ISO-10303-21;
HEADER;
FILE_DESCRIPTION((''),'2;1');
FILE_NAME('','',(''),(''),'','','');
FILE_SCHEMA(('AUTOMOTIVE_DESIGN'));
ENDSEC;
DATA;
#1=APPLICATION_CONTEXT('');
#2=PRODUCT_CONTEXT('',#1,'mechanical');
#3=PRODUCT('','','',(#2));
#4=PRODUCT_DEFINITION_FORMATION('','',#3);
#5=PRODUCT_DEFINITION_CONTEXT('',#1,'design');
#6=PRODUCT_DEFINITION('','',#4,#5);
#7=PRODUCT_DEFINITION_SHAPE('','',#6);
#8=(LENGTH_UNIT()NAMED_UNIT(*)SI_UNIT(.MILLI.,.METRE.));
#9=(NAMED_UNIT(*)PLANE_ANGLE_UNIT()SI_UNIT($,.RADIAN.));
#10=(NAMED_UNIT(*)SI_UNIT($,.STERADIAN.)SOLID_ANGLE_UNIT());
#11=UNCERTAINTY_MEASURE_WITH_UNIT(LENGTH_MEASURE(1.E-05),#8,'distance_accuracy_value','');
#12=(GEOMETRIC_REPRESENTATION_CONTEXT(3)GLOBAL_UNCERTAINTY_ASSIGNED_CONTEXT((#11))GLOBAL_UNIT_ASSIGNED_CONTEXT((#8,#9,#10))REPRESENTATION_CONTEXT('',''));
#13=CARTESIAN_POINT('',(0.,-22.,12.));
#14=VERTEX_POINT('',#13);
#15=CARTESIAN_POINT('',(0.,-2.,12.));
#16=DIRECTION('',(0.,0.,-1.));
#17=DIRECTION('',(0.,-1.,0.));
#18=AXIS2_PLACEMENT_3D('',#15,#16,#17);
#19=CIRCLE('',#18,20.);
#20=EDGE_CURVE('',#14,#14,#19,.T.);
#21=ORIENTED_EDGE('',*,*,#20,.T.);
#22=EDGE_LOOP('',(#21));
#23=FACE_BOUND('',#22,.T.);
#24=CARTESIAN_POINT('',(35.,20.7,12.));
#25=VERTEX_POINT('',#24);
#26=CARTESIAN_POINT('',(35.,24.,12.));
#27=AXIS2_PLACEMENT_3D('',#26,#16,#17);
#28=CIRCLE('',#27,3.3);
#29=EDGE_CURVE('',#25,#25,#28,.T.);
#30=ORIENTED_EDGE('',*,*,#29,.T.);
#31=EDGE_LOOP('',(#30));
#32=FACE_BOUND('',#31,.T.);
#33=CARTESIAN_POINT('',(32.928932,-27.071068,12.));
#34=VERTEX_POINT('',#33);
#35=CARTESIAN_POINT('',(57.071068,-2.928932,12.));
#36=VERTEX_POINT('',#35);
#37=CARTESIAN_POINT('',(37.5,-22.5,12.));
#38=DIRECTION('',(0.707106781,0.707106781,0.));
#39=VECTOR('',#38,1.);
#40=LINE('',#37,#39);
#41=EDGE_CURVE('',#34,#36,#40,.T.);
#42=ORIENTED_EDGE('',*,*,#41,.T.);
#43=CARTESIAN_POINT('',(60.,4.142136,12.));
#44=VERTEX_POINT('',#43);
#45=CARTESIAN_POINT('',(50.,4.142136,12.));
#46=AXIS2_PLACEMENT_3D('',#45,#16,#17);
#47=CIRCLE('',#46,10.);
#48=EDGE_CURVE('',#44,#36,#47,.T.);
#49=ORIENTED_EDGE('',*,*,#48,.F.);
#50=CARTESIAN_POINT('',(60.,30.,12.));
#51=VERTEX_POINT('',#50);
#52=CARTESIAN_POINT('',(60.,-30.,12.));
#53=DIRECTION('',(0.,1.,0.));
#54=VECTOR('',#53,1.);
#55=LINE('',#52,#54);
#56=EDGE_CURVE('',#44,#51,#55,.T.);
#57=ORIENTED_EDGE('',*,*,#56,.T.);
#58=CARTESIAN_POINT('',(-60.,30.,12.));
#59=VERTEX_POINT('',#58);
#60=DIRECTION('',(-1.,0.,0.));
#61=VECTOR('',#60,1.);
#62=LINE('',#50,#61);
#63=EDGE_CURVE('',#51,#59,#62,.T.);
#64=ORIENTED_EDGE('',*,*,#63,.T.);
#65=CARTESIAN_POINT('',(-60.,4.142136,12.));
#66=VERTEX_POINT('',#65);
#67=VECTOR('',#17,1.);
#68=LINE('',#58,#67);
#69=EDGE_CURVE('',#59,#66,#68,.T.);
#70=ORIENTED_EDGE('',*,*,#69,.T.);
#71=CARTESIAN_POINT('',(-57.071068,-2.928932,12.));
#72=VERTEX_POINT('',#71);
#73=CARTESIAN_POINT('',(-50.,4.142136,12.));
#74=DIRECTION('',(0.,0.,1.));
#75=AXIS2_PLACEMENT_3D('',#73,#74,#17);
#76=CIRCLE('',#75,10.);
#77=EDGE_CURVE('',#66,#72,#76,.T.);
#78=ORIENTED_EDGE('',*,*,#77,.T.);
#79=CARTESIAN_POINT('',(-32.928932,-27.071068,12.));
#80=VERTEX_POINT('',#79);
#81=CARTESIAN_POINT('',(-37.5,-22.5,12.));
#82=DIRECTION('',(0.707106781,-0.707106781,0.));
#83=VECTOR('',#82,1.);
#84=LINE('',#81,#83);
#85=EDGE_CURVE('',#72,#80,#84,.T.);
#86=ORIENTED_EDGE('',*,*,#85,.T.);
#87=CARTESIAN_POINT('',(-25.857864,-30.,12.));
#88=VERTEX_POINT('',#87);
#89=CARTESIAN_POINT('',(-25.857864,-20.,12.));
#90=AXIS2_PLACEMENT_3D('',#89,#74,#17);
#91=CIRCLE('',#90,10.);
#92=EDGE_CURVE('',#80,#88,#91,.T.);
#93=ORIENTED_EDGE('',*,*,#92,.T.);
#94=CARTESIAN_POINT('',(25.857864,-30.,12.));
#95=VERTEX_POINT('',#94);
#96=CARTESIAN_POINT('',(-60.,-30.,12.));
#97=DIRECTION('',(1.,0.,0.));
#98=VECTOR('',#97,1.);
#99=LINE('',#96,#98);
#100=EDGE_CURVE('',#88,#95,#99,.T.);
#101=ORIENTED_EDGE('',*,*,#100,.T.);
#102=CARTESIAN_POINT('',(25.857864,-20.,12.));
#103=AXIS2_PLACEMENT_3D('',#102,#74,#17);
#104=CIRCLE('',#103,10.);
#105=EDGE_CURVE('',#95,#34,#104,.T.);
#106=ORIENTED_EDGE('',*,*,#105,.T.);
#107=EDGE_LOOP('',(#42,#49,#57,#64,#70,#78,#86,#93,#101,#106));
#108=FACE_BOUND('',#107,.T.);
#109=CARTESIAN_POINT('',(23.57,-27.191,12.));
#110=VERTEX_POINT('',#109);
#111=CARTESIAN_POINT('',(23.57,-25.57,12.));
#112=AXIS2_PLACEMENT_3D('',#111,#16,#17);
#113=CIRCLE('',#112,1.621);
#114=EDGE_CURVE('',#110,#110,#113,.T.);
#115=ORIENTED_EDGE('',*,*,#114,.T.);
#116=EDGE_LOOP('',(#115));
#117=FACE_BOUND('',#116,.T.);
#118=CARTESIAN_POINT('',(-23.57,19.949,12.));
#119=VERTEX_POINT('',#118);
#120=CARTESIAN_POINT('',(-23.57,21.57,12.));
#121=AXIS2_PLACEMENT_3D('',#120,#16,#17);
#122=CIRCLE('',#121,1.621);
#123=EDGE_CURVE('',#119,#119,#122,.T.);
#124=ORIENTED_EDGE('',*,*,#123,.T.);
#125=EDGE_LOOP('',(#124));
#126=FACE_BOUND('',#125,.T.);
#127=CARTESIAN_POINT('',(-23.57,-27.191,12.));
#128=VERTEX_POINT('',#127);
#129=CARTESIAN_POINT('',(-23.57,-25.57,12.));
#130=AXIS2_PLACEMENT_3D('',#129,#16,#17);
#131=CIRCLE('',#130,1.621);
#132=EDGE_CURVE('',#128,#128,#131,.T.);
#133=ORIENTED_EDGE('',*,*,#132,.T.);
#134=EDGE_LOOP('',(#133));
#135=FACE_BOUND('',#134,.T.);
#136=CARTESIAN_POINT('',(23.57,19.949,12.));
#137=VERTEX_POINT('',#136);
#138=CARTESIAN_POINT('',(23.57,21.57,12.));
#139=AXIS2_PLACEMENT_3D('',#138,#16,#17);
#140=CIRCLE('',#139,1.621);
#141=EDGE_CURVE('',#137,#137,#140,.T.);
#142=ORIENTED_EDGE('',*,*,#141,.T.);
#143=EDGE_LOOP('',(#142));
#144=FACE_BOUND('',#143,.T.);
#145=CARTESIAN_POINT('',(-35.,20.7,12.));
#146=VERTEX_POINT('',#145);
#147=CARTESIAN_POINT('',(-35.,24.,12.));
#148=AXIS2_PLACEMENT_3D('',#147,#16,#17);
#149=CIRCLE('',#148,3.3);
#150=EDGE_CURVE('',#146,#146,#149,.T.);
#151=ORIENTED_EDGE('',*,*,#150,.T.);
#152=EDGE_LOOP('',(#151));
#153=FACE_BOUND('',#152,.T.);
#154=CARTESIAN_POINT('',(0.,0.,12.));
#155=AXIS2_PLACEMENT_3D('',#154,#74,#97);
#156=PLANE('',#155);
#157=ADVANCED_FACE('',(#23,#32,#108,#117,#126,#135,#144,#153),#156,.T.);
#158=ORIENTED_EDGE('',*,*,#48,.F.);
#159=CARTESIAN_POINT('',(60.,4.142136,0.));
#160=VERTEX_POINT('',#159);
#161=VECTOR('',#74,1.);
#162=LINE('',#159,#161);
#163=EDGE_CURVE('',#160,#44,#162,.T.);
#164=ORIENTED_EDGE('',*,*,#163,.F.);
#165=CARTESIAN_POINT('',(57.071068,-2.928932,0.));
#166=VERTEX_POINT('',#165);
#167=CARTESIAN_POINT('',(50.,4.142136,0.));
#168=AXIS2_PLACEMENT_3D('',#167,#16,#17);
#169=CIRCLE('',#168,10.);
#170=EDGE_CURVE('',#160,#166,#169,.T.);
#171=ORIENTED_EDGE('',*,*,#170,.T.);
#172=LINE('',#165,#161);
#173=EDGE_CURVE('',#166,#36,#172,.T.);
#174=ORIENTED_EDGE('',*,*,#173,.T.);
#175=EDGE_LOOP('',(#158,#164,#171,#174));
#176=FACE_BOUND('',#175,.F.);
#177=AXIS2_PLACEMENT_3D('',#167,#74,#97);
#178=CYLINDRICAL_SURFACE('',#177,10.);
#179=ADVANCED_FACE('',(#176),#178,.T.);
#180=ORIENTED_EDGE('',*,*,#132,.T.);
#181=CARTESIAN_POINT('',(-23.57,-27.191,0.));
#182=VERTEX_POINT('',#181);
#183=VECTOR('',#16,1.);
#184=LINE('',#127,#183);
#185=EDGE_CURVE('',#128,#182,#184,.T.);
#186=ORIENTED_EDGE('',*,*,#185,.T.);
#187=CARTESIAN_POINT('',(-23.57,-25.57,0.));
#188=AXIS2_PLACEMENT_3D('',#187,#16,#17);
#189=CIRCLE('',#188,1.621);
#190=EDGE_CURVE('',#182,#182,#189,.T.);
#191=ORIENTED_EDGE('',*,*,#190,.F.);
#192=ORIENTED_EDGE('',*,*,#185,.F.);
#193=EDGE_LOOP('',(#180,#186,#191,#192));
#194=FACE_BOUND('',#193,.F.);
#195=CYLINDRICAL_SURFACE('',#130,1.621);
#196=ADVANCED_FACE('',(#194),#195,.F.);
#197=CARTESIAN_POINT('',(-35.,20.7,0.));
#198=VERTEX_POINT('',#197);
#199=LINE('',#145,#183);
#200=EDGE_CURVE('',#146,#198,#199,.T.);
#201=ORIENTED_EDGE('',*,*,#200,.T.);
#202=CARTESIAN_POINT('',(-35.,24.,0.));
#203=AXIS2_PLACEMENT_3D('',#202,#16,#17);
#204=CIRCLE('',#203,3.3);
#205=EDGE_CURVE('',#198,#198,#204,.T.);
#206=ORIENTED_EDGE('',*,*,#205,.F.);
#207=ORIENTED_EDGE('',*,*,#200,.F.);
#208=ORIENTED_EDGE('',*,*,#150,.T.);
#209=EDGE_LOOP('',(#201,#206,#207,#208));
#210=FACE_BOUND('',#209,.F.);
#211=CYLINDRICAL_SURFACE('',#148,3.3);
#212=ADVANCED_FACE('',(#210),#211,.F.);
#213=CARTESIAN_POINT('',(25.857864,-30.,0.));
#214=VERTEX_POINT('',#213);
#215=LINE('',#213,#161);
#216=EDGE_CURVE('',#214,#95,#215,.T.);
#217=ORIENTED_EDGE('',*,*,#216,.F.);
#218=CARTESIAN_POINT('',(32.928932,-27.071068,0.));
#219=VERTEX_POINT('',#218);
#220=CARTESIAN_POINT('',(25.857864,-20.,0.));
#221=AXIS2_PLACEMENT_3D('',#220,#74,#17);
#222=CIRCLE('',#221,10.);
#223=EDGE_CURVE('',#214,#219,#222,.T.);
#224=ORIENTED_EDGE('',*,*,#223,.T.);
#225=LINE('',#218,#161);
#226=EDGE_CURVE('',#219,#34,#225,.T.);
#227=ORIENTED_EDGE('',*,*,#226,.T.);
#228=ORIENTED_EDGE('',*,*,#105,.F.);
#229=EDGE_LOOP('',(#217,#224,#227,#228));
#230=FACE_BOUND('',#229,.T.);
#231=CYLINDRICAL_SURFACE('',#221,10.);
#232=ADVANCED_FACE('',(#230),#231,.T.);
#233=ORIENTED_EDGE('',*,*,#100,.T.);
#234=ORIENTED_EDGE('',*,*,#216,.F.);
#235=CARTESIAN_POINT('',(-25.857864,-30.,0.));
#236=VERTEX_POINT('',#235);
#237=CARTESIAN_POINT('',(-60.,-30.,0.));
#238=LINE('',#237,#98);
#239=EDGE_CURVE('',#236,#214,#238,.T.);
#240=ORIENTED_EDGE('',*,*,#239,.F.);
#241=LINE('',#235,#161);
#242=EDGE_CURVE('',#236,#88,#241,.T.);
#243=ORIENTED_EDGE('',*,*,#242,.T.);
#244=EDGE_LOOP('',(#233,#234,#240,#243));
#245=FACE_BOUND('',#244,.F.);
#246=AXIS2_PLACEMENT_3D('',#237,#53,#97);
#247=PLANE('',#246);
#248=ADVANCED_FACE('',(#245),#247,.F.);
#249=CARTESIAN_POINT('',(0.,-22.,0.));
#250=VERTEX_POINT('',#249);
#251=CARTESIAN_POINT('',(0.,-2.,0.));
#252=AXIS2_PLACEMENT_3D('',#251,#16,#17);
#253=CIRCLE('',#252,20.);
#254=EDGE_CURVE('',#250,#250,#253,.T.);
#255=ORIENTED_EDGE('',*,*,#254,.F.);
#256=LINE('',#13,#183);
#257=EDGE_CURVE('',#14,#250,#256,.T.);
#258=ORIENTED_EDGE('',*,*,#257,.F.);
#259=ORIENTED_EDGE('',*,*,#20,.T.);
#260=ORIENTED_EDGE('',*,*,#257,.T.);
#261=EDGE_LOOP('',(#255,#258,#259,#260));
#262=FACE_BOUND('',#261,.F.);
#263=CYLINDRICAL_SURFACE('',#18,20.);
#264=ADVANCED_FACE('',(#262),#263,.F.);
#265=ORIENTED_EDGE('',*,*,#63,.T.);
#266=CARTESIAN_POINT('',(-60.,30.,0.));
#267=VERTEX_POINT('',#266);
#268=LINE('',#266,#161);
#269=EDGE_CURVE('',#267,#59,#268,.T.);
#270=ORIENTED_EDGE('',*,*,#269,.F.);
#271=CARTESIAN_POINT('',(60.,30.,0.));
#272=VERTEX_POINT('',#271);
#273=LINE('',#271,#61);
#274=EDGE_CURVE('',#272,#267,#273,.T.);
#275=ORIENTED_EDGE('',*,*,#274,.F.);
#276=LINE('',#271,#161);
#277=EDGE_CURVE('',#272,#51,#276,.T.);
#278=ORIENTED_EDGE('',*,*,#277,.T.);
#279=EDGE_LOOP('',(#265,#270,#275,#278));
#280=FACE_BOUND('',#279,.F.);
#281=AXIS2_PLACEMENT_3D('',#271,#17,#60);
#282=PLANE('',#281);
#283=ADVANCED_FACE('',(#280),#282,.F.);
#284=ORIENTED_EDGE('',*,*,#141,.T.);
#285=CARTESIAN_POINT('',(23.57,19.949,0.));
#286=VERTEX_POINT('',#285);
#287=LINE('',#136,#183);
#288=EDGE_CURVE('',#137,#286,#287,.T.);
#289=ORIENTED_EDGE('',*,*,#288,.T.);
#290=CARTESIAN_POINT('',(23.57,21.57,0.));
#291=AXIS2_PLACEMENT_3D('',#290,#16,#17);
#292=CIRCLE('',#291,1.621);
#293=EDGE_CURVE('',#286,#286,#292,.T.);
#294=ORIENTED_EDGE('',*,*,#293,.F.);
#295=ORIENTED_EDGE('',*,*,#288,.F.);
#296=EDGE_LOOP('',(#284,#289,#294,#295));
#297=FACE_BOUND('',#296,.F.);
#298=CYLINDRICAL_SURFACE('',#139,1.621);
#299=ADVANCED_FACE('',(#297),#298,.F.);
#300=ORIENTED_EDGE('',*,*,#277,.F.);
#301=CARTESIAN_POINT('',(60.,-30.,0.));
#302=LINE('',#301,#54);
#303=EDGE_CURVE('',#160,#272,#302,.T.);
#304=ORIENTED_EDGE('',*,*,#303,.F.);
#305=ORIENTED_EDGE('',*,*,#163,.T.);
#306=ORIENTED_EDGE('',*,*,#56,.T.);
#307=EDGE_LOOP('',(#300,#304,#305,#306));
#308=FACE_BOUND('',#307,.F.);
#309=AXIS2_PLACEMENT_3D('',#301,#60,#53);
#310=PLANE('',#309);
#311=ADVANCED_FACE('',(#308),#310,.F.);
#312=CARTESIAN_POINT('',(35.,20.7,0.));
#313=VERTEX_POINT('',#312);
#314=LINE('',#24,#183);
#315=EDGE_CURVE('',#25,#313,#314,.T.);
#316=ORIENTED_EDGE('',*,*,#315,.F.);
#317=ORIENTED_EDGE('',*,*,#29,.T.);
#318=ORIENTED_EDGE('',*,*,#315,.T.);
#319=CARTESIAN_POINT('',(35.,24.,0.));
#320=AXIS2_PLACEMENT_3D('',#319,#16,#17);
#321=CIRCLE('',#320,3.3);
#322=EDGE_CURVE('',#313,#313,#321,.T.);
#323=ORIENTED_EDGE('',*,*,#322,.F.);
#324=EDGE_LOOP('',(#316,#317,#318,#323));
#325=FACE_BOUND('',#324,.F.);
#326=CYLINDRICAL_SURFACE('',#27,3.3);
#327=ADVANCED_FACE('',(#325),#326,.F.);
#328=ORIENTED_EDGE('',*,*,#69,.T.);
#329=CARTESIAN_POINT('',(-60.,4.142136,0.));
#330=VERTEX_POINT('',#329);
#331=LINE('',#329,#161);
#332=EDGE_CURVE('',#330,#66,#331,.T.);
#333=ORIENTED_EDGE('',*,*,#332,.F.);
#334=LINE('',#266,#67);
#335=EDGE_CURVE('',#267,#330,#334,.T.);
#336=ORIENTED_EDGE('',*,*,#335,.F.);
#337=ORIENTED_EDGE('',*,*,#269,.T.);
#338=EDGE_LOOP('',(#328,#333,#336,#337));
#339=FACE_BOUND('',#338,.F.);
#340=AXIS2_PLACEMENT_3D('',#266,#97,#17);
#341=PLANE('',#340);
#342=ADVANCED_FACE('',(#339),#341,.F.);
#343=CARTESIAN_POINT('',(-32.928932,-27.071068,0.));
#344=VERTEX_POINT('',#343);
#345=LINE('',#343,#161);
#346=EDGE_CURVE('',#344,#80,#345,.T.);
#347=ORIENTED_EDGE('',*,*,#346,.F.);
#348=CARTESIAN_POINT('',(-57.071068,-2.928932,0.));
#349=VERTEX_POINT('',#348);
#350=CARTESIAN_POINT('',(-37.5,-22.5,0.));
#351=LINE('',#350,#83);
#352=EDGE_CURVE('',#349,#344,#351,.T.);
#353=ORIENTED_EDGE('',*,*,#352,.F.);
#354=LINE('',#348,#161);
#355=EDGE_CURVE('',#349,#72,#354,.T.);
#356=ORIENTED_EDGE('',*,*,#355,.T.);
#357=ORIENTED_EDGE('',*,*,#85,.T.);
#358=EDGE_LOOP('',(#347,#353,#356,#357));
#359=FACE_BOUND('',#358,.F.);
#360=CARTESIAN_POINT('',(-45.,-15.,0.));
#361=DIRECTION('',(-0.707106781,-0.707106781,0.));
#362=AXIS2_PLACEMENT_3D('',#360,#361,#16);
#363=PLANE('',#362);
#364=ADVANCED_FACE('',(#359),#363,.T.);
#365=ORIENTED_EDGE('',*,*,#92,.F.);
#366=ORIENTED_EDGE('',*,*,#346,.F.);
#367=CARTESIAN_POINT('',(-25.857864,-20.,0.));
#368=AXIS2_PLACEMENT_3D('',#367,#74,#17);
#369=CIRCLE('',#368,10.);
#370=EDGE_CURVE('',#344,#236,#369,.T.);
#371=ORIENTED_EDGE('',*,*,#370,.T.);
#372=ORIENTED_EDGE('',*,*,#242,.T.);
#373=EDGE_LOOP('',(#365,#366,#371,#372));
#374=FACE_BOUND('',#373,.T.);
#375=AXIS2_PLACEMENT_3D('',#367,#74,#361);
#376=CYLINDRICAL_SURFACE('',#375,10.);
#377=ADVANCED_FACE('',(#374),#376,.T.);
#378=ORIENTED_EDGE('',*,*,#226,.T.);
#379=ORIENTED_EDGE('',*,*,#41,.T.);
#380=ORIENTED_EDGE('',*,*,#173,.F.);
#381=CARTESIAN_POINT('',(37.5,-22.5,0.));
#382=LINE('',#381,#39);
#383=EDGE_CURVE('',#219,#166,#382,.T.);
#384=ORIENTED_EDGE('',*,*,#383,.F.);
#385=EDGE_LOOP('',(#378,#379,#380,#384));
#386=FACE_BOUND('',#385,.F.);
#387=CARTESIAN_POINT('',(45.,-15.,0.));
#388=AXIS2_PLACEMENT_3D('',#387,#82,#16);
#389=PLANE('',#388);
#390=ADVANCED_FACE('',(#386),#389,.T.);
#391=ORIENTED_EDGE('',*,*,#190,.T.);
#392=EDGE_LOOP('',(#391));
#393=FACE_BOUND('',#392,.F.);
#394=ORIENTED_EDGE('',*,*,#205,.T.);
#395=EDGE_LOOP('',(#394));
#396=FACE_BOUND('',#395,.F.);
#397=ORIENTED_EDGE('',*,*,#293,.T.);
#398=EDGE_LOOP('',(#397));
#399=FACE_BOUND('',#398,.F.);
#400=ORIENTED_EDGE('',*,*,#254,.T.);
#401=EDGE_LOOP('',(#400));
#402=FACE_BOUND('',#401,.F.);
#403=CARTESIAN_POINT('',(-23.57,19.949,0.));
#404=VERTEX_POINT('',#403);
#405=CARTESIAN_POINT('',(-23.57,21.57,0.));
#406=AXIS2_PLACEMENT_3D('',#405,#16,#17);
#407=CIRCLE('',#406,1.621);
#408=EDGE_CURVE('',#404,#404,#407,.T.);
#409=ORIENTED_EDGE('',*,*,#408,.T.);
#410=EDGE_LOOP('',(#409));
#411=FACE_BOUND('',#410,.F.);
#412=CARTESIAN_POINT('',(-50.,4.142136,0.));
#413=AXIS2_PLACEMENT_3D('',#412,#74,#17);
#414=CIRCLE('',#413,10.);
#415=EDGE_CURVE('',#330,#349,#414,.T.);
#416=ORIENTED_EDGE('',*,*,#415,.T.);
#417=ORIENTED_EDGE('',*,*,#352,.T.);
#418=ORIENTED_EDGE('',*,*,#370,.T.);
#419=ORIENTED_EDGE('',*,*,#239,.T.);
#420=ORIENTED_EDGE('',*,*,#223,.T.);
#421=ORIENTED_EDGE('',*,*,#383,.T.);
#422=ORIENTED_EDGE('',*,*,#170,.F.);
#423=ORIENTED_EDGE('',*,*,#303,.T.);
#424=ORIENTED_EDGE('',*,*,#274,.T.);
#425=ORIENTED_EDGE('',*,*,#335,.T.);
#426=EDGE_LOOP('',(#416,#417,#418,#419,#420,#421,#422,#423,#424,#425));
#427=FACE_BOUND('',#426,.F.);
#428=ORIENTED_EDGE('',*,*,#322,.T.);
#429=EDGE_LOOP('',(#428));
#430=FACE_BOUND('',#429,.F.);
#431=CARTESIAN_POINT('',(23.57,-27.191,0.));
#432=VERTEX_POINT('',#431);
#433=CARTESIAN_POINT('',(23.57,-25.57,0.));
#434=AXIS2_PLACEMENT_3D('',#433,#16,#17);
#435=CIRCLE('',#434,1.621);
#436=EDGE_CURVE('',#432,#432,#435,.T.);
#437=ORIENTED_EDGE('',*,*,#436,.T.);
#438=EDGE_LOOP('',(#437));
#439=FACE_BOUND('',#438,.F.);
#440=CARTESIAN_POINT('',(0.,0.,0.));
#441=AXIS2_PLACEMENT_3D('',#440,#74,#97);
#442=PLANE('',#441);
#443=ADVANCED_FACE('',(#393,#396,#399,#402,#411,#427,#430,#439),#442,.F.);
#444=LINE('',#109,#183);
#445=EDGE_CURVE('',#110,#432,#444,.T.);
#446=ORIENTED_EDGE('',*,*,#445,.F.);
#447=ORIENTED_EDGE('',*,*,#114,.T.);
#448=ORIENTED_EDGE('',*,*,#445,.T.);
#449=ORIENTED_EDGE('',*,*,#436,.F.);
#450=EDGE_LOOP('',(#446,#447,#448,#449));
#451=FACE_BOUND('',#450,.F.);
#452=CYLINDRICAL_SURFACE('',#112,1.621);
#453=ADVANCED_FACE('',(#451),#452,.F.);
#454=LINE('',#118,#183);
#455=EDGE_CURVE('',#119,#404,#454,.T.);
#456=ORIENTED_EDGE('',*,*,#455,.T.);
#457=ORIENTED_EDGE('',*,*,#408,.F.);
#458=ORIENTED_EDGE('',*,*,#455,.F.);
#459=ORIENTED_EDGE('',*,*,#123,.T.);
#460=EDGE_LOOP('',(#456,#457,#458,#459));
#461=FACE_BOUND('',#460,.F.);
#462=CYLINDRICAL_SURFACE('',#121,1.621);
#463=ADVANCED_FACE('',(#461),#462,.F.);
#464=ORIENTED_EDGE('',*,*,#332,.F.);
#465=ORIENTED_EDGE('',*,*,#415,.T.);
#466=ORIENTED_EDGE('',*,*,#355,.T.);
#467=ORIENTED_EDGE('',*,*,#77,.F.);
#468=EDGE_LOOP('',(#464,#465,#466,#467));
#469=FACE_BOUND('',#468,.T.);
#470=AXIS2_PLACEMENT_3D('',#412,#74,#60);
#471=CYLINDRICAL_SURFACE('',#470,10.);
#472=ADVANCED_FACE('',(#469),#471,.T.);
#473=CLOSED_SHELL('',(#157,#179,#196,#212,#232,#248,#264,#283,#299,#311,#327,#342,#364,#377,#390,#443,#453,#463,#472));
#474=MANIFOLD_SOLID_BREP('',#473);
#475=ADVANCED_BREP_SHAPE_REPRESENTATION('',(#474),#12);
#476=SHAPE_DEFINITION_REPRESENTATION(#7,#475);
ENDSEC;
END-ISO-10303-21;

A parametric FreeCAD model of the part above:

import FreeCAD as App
import Part
import Sketcher
from FreeCAD import Vector


def edges_at(feature, points):
    """Names of the edges that pass closest to the given points."""
    edges = feature.Shape.Edges
    near = lambda p: min(range(len(edges)), key=lambda i: edges[i].distToShape(Part.Vertex(*p))[0])
    return sorted({f"Edge{near(p) + 1}" for p in points})

doc = App.newDocument("Part")
body = doc.addObject("PartDesign::Body", "Body")

# Sketch on XY plane
sketch1 = body.newObject("Sketcher::SketchObject", "Sketch")
sketch1.AttachmentSupport = (doc.getObject("XY_Plane"), [""])
sketch1.MapMode = "FlatFace"
sketch1.addGeometry([
    Part.LineSegment(Vector(-60, 30, 0), Vector(-60, -30, 0)),
    Part.LineSegment(Vector(-60, -30, 0), Vector(60, -30, 0)),
    Part.LineSegment(Vector(60, -30, 0), Vector(60, 30, 0)),
    Part.LineSegment(Vector(60, 30, 0), Vector(-60, 30, 0)),
], False)
sketch1.addConstraint([
    Sketcher.Constraint("Coincident", 0, 2, 1, 1),
    Sketcher.Constraint("Coincident", 1, 2, 2, 1),
    Sketcher.Constraint("Coincident", 2, 2, 3, 1),
    Sketcher.Constraint("Coincident", 3, 2, 0, 1),
    Sketcher.Constraint("Vertical", 0),
    Sketcher.Constraint("Horizontal", 1),
    Sketcher.Constraint("Vertical", 2),
    Sketcher.Constraint("Horizontal", 3),
    Sketcher.Constraint("Symmetric", 0, 2, 2, 2, -1, 1),
    Sketcher.Constraint("DistanceX", 1, 1, 1, 2, 120.0),
    Sketcher.Constraint("DistanceY", 0, 2, 0, 1, 60.0),
])
pad1 = body.newObject("PartDesign::Pad", "Pad")
pad1.Profile = sketch1
pad1.Length = 12

# Sketch on XY plane
sketch2 = body.newObject("Sketcher::SketchObject", "Sketch001")
sketch2.AttachmentSupport = (doc.getObject("XY_Plane"), [""])
sketch2.MapMode = "FlatFace"
sketch2.AttachmentOffset = App.Placement(Vector(0, 0, 12), App.Rotation())
sketch2.addGeometry(Part.Circle(Vector(0, -2, 0), Vector(0, 0, 1), 20), False)
sketch2.addConstraint([
    Sketcher.Constraint("PointOnObject", 0, 3, -2),
    Sketcher.Constraint("Diameter", 0, 40.0),
    Sketcher.Constraint("DistanceY", 0, 3, -1, 1, 2.0),
])
doc.recompute()
hole = body.newObject("PartDesign::Hole", "Hole")
hole.Profile = sketch2
hole.ThreadType = "None"
hole.Diameter = 40
hole.DepthType = "ThroughAll"
doc.recompute()

chamfer = body.newObject("PartDesign::Chamfer", "Chamfer")
chamfer.Base = (hole, edges_at(hole, [(60, -30, 6), (-60, -30, 6)]))
chamfer.Size = 30

# Sketch on XY plane
sketch3 = body.newObject("Sketcher::SketchObject", "Sketch002")
sketch3.AttachmentSupport = (doc.getObject("XY_Plane"), [""])
sketch3.MapMode = "FlatFace"
sketch3.AttachmentOffset = App.Placement(Vector(0, 0, 12), App.Rotation())
sketch3.addGeometry([
    Part.Circle(Vector(-35, 24, 0), Vector(0, 0, 1), 3.3),
    Part.Circle(Vector(35, 24, 0), Vector(0, 0, 1), 3.3),
], False)
sketch3.addConstraint([
    Sketcher.Constraint("Equal", 0, 1),
    Sketcher.Constraint("Symmetric", 0, 3, 1, 3, -2),
    Sketcher.Constraint("Diameter", 0, 6.6),
    Sketcher.Constraint("DistanceX", 0, 3, -1, 1, 35.0),
    Sketcher.Constraint("DistanceY", -1, 1, 0, 3, 24.0),
])
doc.recompute()
hole2 = body.newObject("PartDesign::Hole", "Hole001")
hole2.Profile = sketch3
hole2.ThreadType = "None"
hole2.Diameter = 6.6
hole2.DepthType = "ThroughAll"

# Sketch on XY plane
sketch4 = body.newObject("Sketcher::SketchObject", "Sketch003")
sketch4.AttachmentSupport = (doc.getObject("XY_Plane"), [""])
sketch4.MapMode = "FlatFace"
sketch4.AttachmentOffset = App.Placement(Vector(0, 0, 12), App.Rotation())
sketch4.addGeometry([
    Part.Circle(Vector(-23.6, 21.6, 0), Vector(0, 0, 1), 1.6),
    Part.Circle(Vector(23.6, 21.6, 0), Vector(0, 0, 1), 1.6),
    Part.Circle(Vector(23.6, -25.6, 0), Vector(0, 0, 1), 1.6),
    Part.Circle(Vector(-23.6, -25.6, 0), Vector(0, 0, 1), 1.6),
], False)
sketch4.addConstraint([
    Sketcher.Constraint("Equal", 0, 1),
    Sketcher.Constraint("Equal", 1, 2),
    Sketcher.Constraint("Equal", 2, 3),
    Sketcher.Constraint("Symmetric", 0, 3, 1, 3, -2),
    Sketcher.Constraint("Symmetric", 2, 3, 3, 3, -2),
    Sketcher.Constraint("Vertical", 1, 3, 2, 3),
    Sketcher.Constraint("Diameter", 0, 3.242),
    Sketcher.Constraint("DistanceX", 0, 3, -1, 1, 23.57),
    Sketcher.Constraint("DistanceY", -1, 1, 0, 3, 21.57),
    Sketcher.Constraint("DistanceY", 2, 3, -1, 1, 25.57),
])
doc.recompute()
hole3 = body.newObject("PartDesign::Hole", "Hole002")
hole3.Profile = sketch4
hole3.ThreadType = "None"
hole3.Diameter = 3.242
hole3.DepthType = "ThroughAll"
doc.recompute()

fillet = body.newObject("PartDesign::Fillet", "Fillet")
fillet.Base = (hole3, edges_at(hole3, [
    (-30, -30, 6),
    (-60, 0, 6),
    (30, -30, 6),
    (60, 0, 6),
]))
fillet.Radius = 10

doc.recompute()
